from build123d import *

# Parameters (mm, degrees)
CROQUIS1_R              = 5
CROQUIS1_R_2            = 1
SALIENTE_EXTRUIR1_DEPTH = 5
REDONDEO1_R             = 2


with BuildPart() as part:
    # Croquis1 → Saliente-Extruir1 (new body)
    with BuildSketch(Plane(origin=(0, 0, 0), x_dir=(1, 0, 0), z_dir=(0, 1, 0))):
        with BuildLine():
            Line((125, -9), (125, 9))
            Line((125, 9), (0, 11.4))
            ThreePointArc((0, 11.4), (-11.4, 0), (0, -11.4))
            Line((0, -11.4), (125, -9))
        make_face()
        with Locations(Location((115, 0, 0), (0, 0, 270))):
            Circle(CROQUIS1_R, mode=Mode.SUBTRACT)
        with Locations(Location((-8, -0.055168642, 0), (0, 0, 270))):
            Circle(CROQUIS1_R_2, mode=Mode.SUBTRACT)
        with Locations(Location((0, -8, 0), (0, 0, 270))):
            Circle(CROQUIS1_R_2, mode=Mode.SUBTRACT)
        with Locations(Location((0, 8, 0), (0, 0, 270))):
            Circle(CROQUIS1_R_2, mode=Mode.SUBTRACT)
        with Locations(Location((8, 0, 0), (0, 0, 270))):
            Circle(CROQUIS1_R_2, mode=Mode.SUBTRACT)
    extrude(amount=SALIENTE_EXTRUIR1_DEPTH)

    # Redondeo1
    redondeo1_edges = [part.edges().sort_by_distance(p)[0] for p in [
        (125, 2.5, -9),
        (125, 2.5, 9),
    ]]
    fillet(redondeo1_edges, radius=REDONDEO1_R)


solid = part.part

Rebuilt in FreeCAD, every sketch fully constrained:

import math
import FreeCAD as App
import Part
import Sketcher

V = App.Vector
Q = App.Units.Quantity


def edges_at(feature, points):
    """Names of the edges that pass closest to the given points."""
    edges = feature.Shape.Edges
    near = lambda p: min(range(len(edges)), key=lambda i: edges[i].distToShape(Part.Vertex(*p))[0])
    return sorted({f"Edge{near(p) + 1}" for p in points})

doc = App.newDocument("Part")
body = doc.addObject("PartDesign::Body", "Body")

# Sketch on XZ plane
sketch1 = body.newObject("Sketcher::SketchObject", "Sketch")
sketch1.AttachmentSupport = (doc.getObject("XZ_Plane"), [""])
sketch1.MapMode = "FlatFace"
sketch1.addGeometry([
    Part.LineSegment(V(125, 9, 0), V(125, -9, 0)),  # 0
    Part.LineSegment(V(125, -9, 0), V(0, -11.4, 0)),  # 1
    Part.ArcOfCircle(Part.Circle(V(0, 0, 0), V(0, 0, 1), 11.4), math.radians(90), math.radians(270)),  # 2
    Part.LineSegment(V(0, 11.4, 0), V(125, 9, 0)),  # 3
    Part.Circle(V(0, 8, 0), V(0, 0, 1), 1),  # 4
    Part.Circle(V(-8, 0.055169, 0), V(0, 0, 1), 1),  # 5
    Part.Circle(V(8, 0, 0), V(0, 0, 1), 1),  # 6
    Part.Circle(V(0, -8, 0), V(0, 0, 1), 1),  # 7
    Part.Circle(V(115, 0, 0), V(0, 0, 1), 5),  # 8
], False)
sketch1.addConstraint([
    Sketcher.Constraint("Coincident", 0, 2, 1, 1),
    Sketcher.Constraint("Coincident", 1, 2, 2, 2),
    Sketcher.Constraint("Coincident", 2, 1, 3, 1),
    Sketcher.Constraint("Coincident", 3, 2, 0, 1),
    Sketcher.Constraint("Vertical", 0),
    Sketcher.Constraint("Coincident", 2, 3, -1, 1),
    Sketcher.Constraint("Equal", 4, 5),
    Sketcher.Constraint("Equal", 5, 6),
    Sketcher.Constraint("Equal", 6, 7),
    Sketcher.Constraint("Symmetric", 4, 3, 7, 3, -1, 1),
    Sketcher.Constraint("PointOnObject", 4, 3, -2),
    Sketcher.Constraint("PointOnObject", 6, 3, -1),
    Sketcher.Constraint("PointOnObject", 8, 3, -1),
    Sketcher.Constraint("PointOnObject", 1, 2, -2),
    Sketcher.Constraint("PointOnObject", 2, 1, -2),
    Sketcher.Constraint("Equal", 1, 3),
    Sketcher.Constraint("Diameter", 4, Q("2 mm")),
    Sketcher.Constraint("Diameter", 8, Q("10 mm")),
    Sketcher.Constraint("Radius", 2, Q("11.4 mm")),
    Sketcher.Constraint("DistanceY", 0, 2, 0, 1, Q("18 mm")),
    Sketcher.Constraint("DistanceY", -1, 1, 4, 3, Q("8 mm")),
    Sketcher.Constraint("DistanceX", 5, 3, -1, 1, Q("8 mm")),
    Sketcher.Constraint("DistanceX", -1, 1, 6, 3, Q("8 mm")),
    Sketcher.Constraint("DistanceX", -1, 1, 8, 3, Q("115 mm")),
    Sketcher.Constraint("DistanceX", -1, 1, 0, 2, Q("125 mm")),
    Sketcher.Constraint("DistanceY", -1, 1, 5, 3, Q("0.055169 mm")),
])
pad1 = body.newObject("PartDesign::Pad", "Pad")
pad1.Profile = sketch1
pad1.Length = 5
pad1.Reversed = True
doc.recompute()

fillet = body.newObject("PartDesign::Fillet", "Fillet")
fillet.Base = (pad1, edges_at(pad1, [(125, 2.5, -9), (125, 2.5, 9)]))
fillet.Radius = 2

doc.recompute()
